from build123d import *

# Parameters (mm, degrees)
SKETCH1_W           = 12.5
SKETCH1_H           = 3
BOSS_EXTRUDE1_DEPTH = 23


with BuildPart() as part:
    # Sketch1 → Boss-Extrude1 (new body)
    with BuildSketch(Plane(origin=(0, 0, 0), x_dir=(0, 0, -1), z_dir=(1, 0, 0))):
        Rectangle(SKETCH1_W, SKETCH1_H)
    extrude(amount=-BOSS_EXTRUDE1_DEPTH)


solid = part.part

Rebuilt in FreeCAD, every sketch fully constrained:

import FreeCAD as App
import Part
import Sketcher


def add_polygon(sketch, points):
    """Adds a closed chain of lines whose ends are joined by coincident constraints."""
    first, n = sketch.GeometryCount, len(points)
    for a, b in zip(points, points[1:] + points[:1]):
        sketch.addGeometry(Part.LineSegment(App.Vector(*a, 0), App.Vector(*b, 0)), False)
    for i in range(n):
        sketch.addConstraint(Sketcher.Constraint("Coincident", first + i, 2, first + (i + 1) % n, 1))

doc = App.newDocument("Part")
params = doc.addObject("Spreadsheet::Sheet", "Params")
for row, (alias, value) in enumerate([
    ("sketch1_width", "3 mm"),
    ("sketch1_height", "12.5 mm"),
    ("pad1_length", "23 mm"),
], start=1):
    params.set(f"A{row}", alias)
    params.set(f"B{row}", "=" + value)
    params.setAlias(f"B{row}", alias)

body = doc.addObject("PartDesign::Body", "Body")

sketch1 = doc.addObject("Sketcher::SketchObject", "Sketch")
body.addObject(sketch1)
sketch1.AttachmentSupport = (doc.YZ_Plane, [""])
sketch1.MapMode = "FlatFace"
add_polygon(sketch1, [(1.5, 6.2), (-1.5, 6.2), (-1.5, -6.2), (1.5, -6.2)])
sketch1.addConstraint([
    Sketcher.Constraint("Horizontal", 0),
    Sketcher.Constraint("Vertical", 1),
    Sketcher.Constraint("Horizontal", 2),
    Sketcher.Constraint("Vertical", 3),
    Sketcher.Constraint("Symmetric", 0, 2, 2, 2, -1, 1),
    Sketcher.Constraint("DistanceX", 0, 2, 0, 1, 3.0),
    Sketcher.Constraint("DistanceY", 1, 2, 1, 1, 12.5),
])
sketch1.setExpression("Constraints[9]", "Params.sketch1_width")
sketch1.setExpression("Constraints[10]", "Params.sketch1_height")
pad1 = doc.addObject("PartDesign::Pad", "Pad")
body.addObject(pad1)
pad1.Profile = sketch1
pad1.setExpression("Length", "Params.pad1_length")
pad1.Reversed = True

doc.recompute()
